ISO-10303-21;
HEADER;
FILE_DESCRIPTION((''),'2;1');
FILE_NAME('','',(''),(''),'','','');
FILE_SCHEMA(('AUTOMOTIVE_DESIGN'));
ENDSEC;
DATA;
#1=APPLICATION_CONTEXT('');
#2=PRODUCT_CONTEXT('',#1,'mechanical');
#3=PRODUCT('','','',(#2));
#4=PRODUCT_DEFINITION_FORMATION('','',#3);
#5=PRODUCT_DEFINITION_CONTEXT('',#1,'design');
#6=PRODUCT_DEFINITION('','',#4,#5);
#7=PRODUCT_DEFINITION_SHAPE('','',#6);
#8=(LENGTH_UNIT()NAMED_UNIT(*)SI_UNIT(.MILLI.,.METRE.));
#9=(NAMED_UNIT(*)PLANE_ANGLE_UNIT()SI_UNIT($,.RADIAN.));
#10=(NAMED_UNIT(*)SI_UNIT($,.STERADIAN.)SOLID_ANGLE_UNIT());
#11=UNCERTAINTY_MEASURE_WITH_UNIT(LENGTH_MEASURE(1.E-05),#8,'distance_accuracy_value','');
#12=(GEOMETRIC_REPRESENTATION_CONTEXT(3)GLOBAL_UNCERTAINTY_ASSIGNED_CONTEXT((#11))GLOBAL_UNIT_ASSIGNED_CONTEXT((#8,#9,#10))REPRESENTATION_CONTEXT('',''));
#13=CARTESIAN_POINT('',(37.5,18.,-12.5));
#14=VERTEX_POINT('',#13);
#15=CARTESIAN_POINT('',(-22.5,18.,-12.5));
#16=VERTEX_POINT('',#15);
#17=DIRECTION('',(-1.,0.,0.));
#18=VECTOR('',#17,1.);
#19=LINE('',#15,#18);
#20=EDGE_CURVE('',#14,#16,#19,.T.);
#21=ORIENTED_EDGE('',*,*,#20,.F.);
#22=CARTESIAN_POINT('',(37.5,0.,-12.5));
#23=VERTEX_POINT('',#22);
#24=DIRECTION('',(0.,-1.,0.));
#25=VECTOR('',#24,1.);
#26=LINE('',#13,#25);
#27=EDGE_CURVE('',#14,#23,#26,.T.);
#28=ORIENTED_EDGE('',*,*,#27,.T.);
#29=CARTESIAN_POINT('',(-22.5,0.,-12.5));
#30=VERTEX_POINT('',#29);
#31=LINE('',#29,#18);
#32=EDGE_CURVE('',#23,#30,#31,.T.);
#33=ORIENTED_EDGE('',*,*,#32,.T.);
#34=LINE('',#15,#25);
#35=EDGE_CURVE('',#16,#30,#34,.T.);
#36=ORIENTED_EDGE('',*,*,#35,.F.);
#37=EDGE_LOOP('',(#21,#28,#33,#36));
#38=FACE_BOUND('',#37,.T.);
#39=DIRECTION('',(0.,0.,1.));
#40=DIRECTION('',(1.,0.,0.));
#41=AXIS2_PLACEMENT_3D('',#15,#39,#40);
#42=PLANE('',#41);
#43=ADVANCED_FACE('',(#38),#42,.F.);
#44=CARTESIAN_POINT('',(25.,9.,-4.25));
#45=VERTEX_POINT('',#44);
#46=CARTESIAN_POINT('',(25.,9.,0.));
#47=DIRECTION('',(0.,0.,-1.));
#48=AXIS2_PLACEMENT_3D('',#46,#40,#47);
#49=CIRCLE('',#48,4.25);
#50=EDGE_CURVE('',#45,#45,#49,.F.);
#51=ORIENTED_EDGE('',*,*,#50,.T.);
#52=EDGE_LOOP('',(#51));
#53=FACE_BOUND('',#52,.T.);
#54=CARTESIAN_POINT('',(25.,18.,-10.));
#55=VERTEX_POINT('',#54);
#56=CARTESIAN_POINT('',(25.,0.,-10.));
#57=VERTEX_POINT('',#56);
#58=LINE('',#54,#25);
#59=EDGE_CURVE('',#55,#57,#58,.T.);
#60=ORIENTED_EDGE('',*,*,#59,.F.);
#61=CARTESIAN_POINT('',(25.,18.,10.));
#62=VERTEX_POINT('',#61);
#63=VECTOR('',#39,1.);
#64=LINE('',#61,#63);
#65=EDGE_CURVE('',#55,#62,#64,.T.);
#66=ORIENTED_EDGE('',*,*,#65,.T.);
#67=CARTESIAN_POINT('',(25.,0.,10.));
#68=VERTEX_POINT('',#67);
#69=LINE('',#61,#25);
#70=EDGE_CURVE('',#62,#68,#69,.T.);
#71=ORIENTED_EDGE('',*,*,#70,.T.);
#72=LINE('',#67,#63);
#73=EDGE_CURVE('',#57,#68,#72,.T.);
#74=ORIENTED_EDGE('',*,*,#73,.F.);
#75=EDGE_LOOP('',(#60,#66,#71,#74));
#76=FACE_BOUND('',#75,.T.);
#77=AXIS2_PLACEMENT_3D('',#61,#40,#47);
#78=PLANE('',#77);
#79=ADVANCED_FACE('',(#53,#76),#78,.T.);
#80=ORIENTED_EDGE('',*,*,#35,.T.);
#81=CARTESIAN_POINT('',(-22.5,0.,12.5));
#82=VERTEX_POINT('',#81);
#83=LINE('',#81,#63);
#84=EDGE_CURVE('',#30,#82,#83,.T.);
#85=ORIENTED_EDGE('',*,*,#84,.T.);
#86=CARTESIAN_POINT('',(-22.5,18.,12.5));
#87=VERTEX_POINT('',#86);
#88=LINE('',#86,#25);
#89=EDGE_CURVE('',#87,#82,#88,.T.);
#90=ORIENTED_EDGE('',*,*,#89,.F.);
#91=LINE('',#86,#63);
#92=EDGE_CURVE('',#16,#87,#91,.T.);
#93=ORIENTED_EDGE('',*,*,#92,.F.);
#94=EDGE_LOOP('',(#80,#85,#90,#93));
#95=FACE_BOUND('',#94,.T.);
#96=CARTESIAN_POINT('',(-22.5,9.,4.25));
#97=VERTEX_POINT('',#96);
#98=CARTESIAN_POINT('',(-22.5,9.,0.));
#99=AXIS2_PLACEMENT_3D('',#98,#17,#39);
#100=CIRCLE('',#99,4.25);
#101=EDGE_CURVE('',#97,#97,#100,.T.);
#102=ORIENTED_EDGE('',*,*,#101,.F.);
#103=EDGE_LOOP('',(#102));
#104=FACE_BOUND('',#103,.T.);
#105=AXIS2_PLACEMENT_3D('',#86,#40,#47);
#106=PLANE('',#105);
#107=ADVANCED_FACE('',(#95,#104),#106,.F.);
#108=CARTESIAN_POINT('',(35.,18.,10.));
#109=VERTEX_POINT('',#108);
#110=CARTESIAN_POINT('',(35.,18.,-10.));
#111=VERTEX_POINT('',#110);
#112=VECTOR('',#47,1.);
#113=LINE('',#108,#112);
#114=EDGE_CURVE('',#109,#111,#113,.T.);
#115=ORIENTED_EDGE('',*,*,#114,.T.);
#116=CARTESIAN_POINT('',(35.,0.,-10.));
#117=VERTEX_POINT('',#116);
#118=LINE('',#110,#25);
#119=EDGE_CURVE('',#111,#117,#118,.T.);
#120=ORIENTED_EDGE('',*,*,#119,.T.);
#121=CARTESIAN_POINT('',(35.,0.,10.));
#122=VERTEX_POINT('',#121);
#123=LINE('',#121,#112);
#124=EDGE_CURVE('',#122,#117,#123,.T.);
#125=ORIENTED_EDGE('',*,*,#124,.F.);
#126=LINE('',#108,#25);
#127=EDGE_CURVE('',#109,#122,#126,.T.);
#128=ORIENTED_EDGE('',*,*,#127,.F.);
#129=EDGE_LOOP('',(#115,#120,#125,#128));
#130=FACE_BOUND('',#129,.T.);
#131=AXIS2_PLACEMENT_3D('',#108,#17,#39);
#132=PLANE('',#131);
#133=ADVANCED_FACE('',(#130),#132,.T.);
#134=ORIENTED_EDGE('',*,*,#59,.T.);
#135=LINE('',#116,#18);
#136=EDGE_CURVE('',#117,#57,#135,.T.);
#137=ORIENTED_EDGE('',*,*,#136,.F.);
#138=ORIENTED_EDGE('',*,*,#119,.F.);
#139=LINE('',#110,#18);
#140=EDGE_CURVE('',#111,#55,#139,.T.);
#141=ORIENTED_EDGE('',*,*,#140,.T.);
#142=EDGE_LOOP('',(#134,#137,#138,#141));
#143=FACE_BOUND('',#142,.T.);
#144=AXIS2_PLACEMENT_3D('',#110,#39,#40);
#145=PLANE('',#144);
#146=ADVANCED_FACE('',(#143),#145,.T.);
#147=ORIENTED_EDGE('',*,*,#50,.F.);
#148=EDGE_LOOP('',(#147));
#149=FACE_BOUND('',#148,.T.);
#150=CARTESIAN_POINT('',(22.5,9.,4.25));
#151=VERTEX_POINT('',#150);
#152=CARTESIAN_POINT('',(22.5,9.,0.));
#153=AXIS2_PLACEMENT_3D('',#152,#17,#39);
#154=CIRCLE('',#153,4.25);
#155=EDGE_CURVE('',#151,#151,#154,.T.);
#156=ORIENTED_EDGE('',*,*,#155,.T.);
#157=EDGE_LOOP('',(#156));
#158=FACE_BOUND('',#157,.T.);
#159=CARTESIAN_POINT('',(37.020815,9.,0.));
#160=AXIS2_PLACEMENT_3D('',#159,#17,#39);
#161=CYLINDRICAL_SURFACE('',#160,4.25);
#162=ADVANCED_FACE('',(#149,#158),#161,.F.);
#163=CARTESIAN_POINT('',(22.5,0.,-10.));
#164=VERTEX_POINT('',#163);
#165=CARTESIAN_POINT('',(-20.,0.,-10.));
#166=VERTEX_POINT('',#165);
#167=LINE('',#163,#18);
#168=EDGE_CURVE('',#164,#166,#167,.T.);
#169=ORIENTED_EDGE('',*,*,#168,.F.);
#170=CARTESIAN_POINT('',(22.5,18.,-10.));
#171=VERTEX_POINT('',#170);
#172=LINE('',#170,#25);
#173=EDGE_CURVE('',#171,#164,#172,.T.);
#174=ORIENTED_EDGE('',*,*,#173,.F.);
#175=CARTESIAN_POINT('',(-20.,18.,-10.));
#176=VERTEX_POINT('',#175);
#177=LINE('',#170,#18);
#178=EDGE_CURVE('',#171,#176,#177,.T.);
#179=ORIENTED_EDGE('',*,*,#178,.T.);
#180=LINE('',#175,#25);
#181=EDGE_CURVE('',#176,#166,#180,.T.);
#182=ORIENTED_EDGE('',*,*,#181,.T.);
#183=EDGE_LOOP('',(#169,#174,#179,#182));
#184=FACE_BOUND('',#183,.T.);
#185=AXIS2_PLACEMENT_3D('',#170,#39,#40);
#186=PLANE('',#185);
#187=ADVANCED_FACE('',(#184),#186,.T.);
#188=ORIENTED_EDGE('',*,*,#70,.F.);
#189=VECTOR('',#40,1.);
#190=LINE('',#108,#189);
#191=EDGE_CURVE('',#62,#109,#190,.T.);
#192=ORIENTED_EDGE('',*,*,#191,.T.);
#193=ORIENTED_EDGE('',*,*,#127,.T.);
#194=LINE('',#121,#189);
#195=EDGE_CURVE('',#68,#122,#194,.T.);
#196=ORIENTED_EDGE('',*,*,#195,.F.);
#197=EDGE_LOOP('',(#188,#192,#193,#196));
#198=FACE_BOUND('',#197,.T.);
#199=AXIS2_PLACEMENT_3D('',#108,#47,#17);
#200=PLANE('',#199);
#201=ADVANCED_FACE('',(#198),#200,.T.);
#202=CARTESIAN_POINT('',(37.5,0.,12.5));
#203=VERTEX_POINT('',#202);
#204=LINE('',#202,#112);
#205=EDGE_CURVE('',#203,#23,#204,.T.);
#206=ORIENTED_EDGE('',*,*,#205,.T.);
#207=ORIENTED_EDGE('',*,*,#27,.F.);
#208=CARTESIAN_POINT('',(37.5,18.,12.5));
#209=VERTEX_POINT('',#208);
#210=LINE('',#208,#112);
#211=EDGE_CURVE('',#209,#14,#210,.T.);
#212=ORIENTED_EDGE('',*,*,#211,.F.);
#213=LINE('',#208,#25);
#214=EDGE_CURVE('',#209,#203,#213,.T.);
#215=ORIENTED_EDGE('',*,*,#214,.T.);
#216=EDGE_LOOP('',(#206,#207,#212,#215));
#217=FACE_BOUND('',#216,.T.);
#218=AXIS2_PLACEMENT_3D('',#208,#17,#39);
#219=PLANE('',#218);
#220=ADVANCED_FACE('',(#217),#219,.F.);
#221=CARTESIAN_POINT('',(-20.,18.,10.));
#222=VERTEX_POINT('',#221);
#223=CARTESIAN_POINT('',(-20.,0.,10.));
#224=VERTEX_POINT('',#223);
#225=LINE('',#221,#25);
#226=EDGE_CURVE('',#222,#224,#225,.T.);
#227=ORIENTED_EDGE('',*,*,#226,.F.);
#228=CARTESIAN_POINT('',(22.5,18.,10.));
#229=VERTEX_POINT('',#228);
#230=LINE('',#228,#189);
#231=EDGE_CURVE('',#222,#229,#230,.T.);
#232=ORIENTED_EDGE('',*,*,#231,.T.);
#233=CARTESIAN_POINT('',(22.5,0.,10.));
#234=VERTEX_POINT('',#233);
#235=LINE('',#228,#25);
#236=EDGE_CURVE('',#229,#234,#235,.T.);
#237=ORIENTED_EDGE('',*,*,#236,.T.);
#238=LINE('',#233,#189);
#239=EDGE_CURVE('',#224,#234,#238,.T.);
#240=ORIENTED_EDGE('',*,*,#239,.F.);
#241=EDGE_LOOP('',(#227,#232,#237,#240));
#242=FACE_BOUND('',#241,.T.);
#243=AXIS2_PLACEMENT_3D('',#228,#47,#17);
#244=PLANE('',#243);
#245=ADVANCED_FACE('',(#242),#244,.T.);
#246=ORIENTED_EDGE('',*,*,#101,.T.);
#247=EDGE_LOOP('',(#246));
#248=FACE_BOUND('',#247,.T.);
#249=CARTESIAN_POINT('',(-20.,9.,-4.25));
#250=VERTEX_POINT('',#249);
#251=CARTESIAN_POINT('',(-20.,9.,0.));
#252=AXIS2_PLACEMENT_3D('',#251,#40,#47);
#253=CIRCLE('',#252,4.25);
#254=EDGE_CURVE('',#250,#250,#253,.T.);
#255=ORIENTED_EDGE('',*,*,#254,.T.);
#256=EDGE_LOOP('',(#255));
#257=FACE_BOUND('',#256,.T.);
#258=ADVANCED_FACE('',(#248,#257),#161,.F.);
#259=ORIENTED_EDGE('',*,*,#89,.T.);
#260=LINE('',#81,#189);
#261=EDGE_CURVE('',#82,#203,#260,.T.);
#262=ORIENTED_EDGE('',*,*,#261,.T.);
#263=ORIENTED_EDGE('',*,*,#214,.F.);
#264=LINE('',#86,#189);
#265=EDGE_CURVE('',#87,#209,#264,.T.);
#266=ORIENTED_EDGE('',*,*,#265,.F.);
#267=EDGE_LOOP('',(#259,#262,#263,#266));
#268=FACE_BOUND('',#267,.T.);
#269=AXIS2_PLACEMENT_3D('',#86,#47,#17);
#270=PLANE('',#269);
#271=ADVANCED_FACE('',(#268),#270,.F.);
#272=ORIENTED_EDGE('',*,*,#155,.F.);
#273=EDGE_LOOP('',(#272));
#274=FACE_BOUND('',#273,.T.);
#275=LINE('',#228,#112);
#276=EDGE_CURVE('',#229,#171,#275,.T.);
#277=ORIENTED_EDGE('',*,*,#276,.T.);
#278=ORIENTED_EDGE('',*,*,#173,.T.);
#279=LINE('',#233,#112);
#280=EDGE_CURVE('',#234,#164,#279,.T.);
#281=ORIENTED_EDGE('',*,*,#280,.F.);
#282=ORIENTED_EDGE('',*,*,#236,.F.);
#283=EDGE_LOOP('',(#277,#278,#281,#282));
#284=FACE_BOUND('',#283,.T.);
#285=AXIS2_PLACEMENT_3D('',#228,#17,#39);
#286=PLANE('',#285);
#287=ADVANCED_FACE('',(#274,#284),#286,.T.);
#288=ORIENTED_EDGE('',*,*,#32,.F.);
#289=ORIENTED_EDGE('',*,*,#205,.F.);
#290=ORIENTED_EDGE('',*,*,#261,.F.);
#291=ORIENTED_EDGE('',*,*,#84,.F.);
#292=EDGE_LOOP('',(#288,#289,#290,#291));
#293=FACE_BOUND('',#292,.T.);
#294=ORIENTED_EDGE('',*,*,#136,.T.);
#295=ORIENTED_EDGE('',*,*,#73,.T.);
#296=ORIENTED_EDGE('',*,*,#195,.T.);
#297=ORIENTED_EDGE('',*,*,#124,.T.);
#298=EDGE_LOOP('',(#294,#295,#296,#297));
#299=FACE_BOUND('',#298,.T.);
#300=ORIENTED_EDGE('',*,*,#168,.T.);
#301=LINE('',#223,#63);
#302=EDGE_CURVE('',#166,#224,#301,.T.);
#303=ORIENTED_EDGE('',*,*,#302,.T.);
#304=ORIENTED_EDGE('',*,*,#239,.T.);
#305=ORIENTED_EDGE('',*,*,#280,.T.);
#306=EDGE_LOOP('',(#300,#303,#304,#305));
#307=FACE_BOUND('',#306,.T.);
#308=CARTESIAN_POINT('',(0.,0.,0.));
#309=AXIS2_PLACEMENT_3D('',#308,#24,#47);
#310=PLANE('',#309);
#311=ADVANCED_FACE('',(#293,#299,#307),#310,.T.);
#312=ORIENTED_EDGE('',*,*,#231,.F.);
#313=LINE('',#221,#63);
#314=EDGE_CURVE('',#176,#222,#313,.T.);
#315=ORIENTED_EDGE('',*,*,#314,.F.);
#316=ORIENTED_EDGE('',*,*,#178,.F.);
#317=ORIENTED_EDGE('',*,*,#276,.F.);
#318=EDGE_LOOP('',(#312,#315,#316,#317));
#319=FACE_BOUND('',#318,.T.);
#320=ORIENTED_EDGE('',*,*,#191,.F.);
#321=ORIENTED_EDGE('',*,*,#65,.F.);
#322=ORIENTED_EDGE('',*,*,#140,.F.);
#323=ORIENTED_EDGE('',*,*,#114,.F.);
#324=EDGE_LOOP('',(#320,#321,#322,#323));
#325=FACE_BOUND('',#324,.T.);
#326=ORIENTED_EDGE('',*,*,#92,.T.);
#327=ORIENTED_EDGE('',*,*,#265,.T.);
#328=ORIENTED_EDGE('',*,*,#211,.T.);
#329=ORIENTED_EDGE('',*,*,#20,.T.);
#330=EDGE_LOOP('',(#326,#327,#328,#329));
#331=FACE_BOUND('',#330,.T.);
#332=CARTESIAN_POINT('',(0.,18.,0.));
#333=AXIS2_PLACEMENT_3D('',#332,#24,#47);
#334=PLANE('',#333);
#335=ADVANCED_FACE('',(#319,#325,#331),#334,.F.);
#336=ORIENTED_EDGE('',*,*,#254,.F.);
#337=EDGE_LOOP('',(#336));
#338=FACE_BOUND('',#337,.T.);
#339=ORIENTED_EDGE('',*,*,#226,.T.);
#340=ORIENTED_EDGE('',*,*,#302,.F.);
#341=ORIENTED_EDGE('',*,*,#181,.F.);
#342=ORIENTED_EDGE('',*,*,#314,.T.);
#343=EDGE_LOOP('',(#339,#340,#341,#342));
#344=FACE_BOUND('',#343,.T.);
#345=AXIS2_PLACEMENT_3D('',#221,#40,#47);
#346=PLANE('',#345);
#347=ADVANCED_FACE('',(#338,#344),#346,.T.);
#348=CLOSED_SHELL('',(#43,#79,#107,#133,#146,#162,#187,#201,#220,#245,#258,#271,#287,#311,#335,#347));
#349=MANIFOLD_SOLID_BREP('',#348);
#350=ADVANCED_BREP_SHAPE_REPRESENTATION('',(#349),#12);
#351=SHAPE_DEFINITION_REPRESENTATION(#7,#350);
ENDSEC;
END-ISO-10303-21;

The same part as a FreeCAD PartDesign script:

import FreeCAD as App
import Part
import Sketcher
from FreeCAD import Vector
Q = App.Units.Quantity


def add_polygon(sketch, points):
    """Adds a closed chain of lines whose ends are joined by coincident constraints."""
    first, n = sketch.GeometryCount, len(points)
    for a, b in zip(points, points[1:] + points[:1]):
        sketch.addGeometry(Part.LineSegment(App.Vector(*a, 0), App.Vector(*b, 0)), False)
    for i in range(n):
        sketch.addConstraint(Sketcher.Constraint("Coincident", first + i, 2, first + (i + 1) % n, 1))

doc = App.newDocument("Part")
body = doc.addObject("PartDesign::Body", "Body")

# Sketch on XZ plane
sketch1 = doc.addObject("Sketcher::SketchObject", "Sketch")
body.addObject(sketch1)
sketch1.AttachmentSupport = (doc.XZ_Plane, [""])
sketch1.MapMode = "FlatFace"
add_polygon(sketch1, [(-22.5, -12.5), (-22.5, 12.5), (37.5, 12.5), (37.5, -12.5)])  # lines 0-3
add_polygon(sketch1, [(22.5, 10), (-20, 10), (-20, -10), (22.5, -10)])  # lines 4-7
add_polygon(sketch1, [(35, 10), (25, 10), (25, -10), (35, -10)])  # lines 8-11
sketch1.addConstraint(Sketcher.Constraint("Vertical", 0))
sketch1.addConstraint(Sketcher.Constraint("Horizontal", 1))
sketch1.addConstraint(Sketcher.Constraint("Vertical", 2))
sketch1.addConstraint(Sketcher.Constraint("Horizontal", 3))
sketch1.addConstraint(Sketcher.Constraint("Horizontal", 4))
sketch1.addConstraint(Sketcher.Constraint("Vertical", 5))
sketch1.addConstraint(Sketcher.Constraint("Horizontal", 6))
sketch1.addConstraint(Sketcher.Constraint("Vertical", 7))
sketch1.addConstraint(Sketcher.Constraint("Horizontal", 8))
sketch1.addConstraint(Sketcher.Constraint("Vertical", 9))
sketch1.addConstraint(Sketcher.Constraint("Horizontal", 10))
sketch1.addConstraint(Sketcher.Constraint("Vertical", 11))
sketch1.addConstraint(Sketcher.Constraint("Horizontal", 7, 2, 8, 2))
sketch1.addConstraint(Sketcher.Constraint("Horizontal", 6, 2, 9, 2))
sketch1.addConstraint(Sketcher.Constraint("DistanceX", 1, 1, 1, 2, Q("60 mm")))
sketch1.addConstraint(Sketcher.Constraint("DistanceX", 8, 2, 8, 1, Q("10 mm")))
sketch1.addConstraint(Sketcher.Constraint("DistanceY", 0, 1, 0, 2, Q("25 mm")))
sketch1.addConstraint(Sketcher.Constraint("DistanceY", 5, 2, 5, 1, Q("20 mm")))
sketch1.addConstraint(Sketcher.Constraint("DistanceX", 4, 2, 4, 1, Q("42.5 mm")))
sketch1.addConstraint(Sketcher.Constraint("DistanceX", 4, 2, -1, 1, Q("20 mm")))
sketch1.addConstraint(Sketcher.Constraint("DistanceY", -1, 1, 4, 2, Q("10 mm")))
sketch1.addConstraint(Sketcher.Constraint("DistanceX", -1, 1, 8, 2, Q("25 mm")))
sketch1.addConstraint(Sketcher.Constraint("DistanceX", 6, 2, 2, 2, Q("15 mm")))
sketch1.addConstraint(Sketcher.Constraint("DistanceY", -1, 1, 0, 2, Q("12.5 mm")))
pad1 = doc.addObject("PartDesign::Pad", "Pad")
body.addObject(pad1)
pad1.Profile = sketch1
pad1.Length = 18
pad1.Reversed = True

# Sketch on YZ plane
sketch2 = doc.addObject("Sketcher::SketchObject", "Sketch001")
body.addObject(sketch2)
sketch2.AttachmentSupport = (doc.YZ_Plane, [""])
sketch2.MapMode = "FlatFace"
sketch2.AttachmentOffset = App.Placement(Vector(0, 0, -22.5), App.Rotation())
sketch2.addGeometry(Part.Circle(Vector(9, 0, 0), Vector(0, 0, 1), 4.25), False)
sketch2.addConstraint(Sketcher.Constraint("PointOnObject", 0, 3, -1))
sketch2.addConstraint(Sketcher.Constraint("Diameter", 0, Q("8.5 mm")))
sketch2.addConstraint(Sketcher.Constraint("DistanceX", -1, 1, 0, 3, Q("9 mm")))
pocket1 = doc.addObject("PartDesign::Pocket", "Pocket")
body.addObject(pocket1)
pocket1.Profile = sketch2
pocket1.Length = 47.5
pocket1.Reversed = True

doc.recompute()
